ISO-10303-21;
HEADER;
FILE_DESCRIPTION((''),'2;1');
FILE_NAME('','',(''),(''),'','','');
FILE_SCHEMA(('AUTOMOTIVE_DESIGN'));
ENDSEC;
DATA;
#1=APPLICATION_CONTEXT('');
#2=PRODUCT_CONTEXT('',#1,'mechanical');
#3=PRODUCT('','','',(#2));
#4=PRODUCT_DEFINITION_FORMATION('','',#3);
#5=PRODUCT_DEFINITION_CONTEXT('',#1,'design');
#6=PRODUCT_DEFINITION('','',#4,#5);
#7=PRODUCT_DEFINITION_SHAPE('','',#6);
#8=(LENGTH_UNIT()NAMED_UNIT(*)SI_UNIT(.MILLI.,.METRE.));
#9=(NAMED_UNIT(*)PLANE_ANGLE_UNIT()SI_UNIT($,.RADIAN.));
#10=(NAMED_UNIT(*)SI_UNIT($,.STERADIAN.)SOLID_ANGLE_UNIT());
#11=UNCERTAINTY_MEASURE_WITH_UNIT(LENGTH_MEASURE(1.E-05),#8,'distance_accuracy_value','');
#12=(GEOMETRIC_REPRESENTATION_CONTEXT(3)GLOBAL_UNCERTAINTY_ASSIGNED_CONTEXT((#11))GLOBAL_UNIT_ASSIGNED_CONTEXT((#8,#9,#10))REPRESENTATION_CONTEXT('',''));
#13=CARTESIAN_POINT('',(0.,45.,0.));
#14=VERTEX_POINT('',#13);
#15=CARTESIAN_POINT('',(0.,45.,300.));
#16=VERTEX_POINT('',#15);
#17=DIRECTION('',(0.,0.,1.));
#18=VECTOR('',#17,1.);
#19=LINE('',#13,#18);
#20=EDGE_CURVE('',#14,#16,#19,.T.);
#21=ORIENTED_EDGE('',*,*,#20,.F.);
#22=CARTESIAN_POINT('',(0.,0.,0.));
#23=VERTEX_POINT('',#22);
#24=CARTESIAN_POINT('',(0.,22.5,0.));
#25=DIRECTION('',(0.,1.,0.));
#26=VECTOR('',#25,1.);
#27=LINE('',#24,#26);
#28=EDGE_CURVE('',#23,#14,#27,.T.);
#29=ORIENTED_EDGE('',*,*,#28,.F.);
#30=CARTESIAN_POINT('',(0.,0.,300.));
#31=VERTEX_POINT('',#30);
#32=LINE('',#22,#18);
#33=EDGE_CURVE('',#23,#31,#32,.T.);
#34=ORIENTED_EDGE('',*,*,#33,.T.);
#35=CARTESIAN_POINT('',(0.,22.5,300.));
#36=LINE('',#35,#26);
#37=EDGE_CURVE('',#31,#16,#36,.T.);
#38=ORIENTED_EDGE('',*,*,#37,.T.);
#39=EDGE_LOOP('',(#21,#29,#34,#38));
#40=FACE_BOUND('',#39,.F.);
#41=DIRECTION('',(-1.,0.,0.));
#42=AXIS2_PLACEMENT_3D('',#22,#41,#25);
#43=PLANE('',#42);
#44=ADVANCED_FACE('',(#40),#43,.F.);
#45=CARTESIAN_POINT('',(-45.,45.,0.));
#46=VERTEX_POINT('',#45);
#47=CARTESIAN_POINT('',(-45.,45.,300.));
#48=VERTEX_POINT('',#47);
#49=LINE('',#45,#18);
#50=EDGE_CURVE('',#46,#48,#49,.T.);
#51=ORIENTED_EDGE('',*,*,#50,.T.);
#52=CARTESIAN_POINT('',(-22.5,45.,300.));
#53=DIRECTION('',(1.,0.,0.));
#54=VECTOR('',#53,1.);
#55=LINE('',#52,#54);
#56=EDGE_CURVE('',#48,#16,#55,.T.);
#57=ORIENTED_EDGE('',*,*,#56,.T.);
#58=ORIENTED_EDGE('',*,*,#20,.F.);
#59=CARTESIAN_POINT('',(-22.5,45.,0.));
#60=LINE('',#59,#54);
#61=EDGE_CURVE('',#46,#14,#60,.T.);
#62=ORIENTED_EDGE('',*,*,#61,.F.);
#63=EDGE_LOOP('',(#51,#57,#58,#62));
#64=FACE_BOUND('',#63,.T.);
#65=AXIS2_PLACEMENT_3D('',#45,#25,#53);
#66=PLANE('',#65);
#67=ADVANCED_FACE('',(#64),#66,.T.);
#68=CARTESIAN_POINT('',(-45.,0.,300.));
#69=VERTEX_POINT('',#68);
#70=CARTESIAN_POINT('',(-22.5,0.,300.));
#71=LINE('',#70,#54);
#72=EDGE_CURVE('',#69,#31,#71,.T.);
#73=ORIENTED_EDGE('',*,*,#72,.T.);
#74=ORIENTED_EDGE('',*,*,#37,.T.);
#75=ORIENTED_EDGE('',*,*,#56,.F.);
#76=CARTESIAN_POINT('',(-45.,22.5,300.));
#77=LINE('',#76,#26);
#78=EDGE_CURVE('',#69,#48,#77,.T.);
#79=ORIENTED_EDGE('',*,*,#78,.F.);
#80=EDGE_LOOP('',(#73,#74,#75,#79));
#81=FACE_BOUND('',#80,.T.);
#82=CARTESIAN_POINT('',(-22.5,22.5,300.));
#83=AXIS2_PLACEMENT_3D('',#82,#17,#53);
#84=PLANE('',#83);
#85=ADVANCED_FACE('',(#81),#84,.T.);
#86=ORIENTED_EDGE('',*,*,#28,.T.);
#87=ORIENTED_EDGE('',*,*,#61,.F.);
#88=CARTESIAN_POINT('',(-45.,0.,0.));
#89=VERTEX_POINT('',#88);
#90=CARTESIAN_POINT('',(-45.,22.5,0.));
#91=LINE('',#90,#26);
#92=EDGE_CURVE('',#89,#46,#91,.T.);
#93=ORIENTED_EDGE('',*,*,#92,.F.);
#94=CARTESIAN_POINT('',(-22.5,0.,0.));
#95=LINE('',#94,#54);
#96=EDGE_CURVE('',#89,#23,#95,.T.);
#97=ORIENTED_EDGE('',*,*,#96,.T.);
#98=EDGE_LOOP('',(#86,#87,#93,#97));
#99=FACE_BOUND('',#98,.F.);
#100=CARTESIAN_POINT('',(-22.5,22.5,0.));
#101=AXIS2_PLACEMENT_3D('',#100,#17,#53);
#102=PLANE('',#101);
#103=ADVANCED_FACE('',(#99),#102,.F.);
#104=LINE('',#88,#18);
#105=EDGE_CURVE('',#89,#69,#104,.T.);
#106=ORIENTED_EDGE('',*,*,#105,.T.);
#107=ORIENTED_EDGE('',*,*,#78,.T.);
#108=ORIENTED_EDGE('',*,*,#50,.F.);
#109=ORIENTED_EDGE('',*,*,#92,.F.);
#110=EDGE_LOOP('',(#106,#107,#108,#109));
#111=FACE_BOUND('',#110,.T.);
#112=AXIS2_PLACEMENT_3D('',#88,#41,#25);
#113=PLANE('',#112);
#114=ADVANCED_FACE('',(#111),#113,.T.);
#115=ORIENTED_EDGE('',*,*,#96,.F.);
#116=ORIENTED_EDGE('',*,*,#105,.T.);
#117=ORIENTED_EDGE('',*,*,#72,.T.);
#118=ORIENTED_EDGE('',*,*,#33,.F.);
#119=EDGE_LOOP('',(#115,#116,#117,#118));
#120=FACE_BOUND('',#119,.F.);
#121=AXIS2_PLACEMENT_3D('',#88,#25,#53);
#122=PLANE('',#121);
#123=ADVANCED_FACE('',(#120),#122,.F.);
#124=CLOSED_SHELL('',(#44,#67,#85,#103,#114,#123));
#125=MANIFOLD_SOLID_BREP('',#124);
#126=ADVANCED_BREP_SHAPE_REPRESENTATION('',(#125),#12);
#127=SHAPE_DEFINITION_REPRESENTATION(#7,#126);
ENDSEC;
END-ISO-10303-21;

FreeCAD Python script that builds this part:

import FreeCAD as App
import Part
import Sketcher
Q = App.Units.Quantity


def add_polygon(sketch, points):
    """Adds a closed chain of lines whose ends are joined by coincident constraints."""
    first, n = sketch.GeometryCount, len(points)
    for a, b in zip(points, points[1:] + points[:1]):
        sketch.addGeometry(Part.LineSegment(App.Vector(*a, 0), App.Vector(*b, 0)), False)
    for i in range(n):
        sketch.addConstraint(Sketcher.Constraint("Coincident", first + i, 2, first + (i + 1) % n, 1))

doc = App.newDocument("Part")
params = doc.addObject("Spreadsheet::Sheet", "Params")
for row, (alias, value) in enumerate([
    ("sketch1_width", "45 mm"),
    ("pad1_length", "300 mm"),
], start=1):
    params.set(f"A{row}", alias)
    params.set(f"B{row}", "=" + value)
    params.setAlias(f"B{row}", alias)

body = doc.addObject("PartDesign::Body", "Body")

# Sketch on XY plane
sketch1 = doc.addObject("Sketcher::SketchObject", "Sketch")
body.addObject(sketch1)
sketch1.AttachmentSupport = (doc.XY_Plane, [""])
sketch1.MapMode = "FlatFace"
add_polygon(sketch1, [(-45, 45), (-45, 0), (0, 0), (0, 45)])  # lines 0-3
sketch1.addConstraint([
    Sketcher.Constraint("Vertical", 0),
    Sketcher.Constraint("Horizontal", 1),
    Sketcher.Constraint("Vertical", 2),
    Sketcher.Constraint("Horizontal", 3),
    Sketcher.Constraint("Coincident", 1, 2, -1, 1),
    Sketcher.Constraint("Equal", 3, 0),
    Sketcher.Constraint("DistanceX", 1, 1, 1, 2, Q("45 mm")),
])
sketch1.setExpression("Constraints[10]", "Params.sketch1_width")
pad1 = doc.addObject("PartDesign::Pad", "Pad")
body.addObject(pad1)
pad1.Profile = sketch1
pad1.setExpression("Length", "Params.pad1_length")

doc.recompute()
